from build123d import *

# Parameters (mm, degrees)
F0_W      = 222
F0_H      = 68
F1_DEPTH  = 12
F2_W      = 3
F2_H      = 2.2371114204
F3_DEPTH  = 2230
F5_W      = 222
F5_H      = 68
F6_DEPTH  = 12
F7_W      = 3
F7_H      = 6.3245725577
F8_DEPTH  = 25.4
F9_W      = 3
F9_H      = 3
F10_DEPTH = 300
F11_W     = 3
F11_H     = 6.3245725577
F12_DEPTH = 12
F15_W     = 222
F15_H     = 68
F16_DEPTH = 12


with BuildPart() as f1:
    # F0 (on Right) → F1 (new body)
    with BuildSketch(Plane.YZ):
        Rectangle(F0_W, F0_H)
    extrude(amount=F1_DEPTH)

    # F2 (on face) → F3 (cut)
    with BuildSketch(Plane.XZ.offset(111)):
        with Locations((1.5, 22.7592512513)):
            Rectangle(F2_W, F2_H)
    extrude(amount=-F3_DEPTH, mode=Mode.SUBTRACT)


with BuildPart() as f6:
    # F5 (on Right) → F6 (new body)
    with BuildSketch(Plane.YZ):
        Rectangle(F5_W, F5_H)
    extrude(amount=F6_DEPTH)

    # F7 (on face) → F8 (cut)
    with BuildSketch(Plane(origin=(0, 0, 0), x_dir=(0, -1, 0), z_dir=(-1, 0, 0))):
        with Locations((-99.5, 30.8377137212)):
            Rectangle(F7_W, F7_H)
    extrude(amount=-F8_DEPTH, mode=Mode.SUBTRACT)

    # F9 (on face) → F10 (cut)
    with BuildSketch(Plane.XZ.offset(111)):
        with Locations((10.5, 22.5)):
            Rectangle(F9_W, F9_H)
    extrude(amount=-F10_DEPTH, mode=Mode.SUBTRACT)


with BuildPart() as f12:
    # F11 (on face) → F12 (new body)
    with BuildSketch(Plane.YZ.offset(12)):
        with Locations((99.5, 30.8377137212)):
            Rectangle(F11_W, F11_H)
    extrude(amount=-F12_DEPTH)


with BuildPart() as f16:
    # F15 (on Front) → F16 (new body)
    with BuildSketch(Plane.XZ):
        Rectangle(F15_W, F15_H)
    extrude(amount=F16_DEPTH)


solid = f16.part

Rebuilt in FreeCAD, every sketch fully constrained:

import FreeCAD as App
import Part
import Sketcher


def add_polygon(sketch, points):
    """Adds a closed chain of lines whose ends are joined by coincident constraints."""
    first, n = sketch.GeometryCount, len(points)
    for a, b in zip(points, points[1:] + points[:1]):
        sketch.addGeometry(Part.LineSegment(App.Vector(*a, 0), App.Vector(*b, 0)), False)
    for i in range(n):
        sketch.addConstraint(Sketcher.Constraint("Coincident", first + i, 2, first + (i + 1) % n, 1))

doc = App.newDocument("Part")
body = doc.addObject("PartDesign::Body", "Body")

# Sketch on YZ plane
sketch1 = body.newObject("Sketcher::SketchObject", "Sketch")
sketch1.AttachmentSupport = (doc.getObject("YZ_Plane"), [""])
sketch1.MapMode = "FlatFace"
add_polygon(sketch1, [(-111, 34), (-111, -34), (111, -34), (111, 34)])  # lines 0-3
sketch1.addConstraint(Sketcher.Constraint("Vertical", 0))
sketch1.addConstraint(Sketcher.Constraint("Horizontal", 1))
sketch1.addConstraint(Sketcher.Constraint("Vertical", 2))
sketch1.addConstraint(Sketcher.Constraint("Horizontal", 3))
sketch1.addConstraint(Sketcher.Constraint("Symmetric", 0, 2, 2, 2, -1, 1))
sketch1.addConstraint(Sketcher.Constraint("DistanceX", 1, 1, 1, 2, 222.0))
sketch1.addConstraint(Sketcher.Constraint("DistanceY", 0, 2, 0, 1, 68.0))
pad1 = body.newObject("PartDesign::Pad", "Pad")
pad1.Profile = sketch1
pad1.Length = 12

# Sketch on XZ plane
sketch2 = body.newObject("Sketcher::SketchObject", "Sketch001")
sketch2.AttachmentSupport = (doc.getObject("XZ_Plane"), [""])
sketch2.MapMode = "FlatFace"
sketch2.AttachmentOffset = App.Placement(App.Vector(0, 0, 111), App.Rotation())
add_polygon(sketch2, [(0, 23.877807), (0, 21.640696), (3, 21.640696), (3, 23.877807)])  # lines 0-3
sketch2.addConstraint(Sketcher.Constraint("Vertical", 0))
sketch2.addConstraint(Sketcher.Constraint("Horizontal", 1))
sketch2.addConstraint(Sketcher.Constraint("Vertical", 2))
sketch2.addConstraint(Sketcher.Constraint("Horizontal", 3))
sketch2.addConstraint(Sketcher.Constraint("PointOnObject", 0, 2, -2))
sketch2.addConstraint(Sketcher.Constraint("DistanceX", 1, 1, 1, 2, 3.0))
sketch2.addConstraint(Sketcher.Constraint("DistanceY", 0, 2, 0, 1, 2.237111))
sketch2.addConstraint(Sketcher.Constraint("DistanceY", -1, 1, 0, 2, 21.640696))
pocket1 = body.newObject("PartDesign::Pocket", "Pocket")
pocket1.Profile = sketch2
pocket1.Length = 2230
body2 = doc.addObject("PartDesign::Body", "Body001")

# Sketch on YZ plane
sketch3 = body2.newObject("Sketcher::SketchObject", "Sketch002")
sketch3.AttachmentSupport = (doc.getObject("YZ_Plane001"), [""])
sketch3.MapMode = "FlatFace"
add_polygon(sketch3, [(-111, 34), (-111, -34), (111, -34), (111, 34)])  # lines 0-3
sketch3.addConstraint(Sketcher.Constraint("Vertical", 0))
sketch3.addConstraint(Sketcher.Constraint("Horizontal", 1))
sketch3.addConstraint(Sketcher.Constraint("Vertical", 2))
sketch3.addConstraint(Sketcher.Constraint("Horizontal", 3))
sketch3.addConstraint(Sketcher.Constraint("Symmetric", 0, 2, 2, 2, -1, 1))
sketch3.addConstraint(Sketcher.Constraint("DistanceX", 1, 1, 1, 2, 222.0))
sketch3.addConstraint(Sketcher.Constraint("DistanceY", 0, 2, 0, 1, 68.0))
pad2 = body2.newObject("PartDesign::Pad", "Pad001")
pad2.Profile = sketch3
pad2.Length = 12

# Sketch on YZ plane
sketch4 = body2.newObject("Sketcher::SketchObject", "Sketch003")
sketch4.AttachmentSupport = (doc.getObject("YZ_Plane001"), [""])
sketch4.MapMode = "FlatFace"
add_polygon(sketch4, [(101, 34), (101, 27.675427), (98, 27.675427), (98, 34)])  # lines 0-3
sketch4.addConstraint(Sketcher.Constraint("Vertical", 0))
sketch4.addConstraint(Sketcher.Constraint("Horizontal", 1))
sketch4.addConstraint(Sketcher.Constraint("Vertical", 2))
sketch4.addConstraint(Sketcher.Constraint("Horizontal", 3))
sketch4.addConstraint(Sketcher.Constraint("DistanceX", 1, 2, 1, 1, 3.0))
sketch4.addConstraint(Sketcher.Constraint("DistanceX", -1, 1, 0, 2, 101.0))
sketch4.addConstraint(Sketcher.Constraint("DistanceY", -1, 1, 2, 2, 34.0))
sketch4.addConstraint(Sketcher.Constraint("DistanceY", 0, 2, 0, 1, 6.324573))
pocket2 = body2.newObject("PartDesign::Pocket", "Pocket001")
pocket2.Profile = sketch4
pocket2.Length = 25.4
pocket2.Reversed = True

# Sketch on XZ plane
sketch5 = body2.newObject("Sketcher::SketchObject", "Sketch004")
sketch5.AttachmentSupport = (doc.getObject("XZ_Plane001"), [""])
sketch5.MapMode = "FlatFace"
sketch5.AttachmentOffset = App.Placement(App.Vector(0, 0, 111), App.Rotation())
add_polygon(sketch5, [(9, 24), (9, 21), (12, 21), (12, 24)])  # lines 0-3
sketch5.addConstraint(Sketcher.Constraint("Vertical", 0))
sketch5.addConstraint(Sketcher.Constraint("Horizontal", 1))
sketch5.addConstraint(Sketcher.Constraint("Vertical", 2))
sketch5.addConstraint(Sketcher.Constraint("Horizontal", 3))
sketch5.addConstraint(Sketcher.Constraint("Equal", 3, 0))
sketch5.addConstraint(Sketcher.Constraint("DistanceX", 1, 1, 1, 2, 3.0))
sketch5.addConstraint(Sketcher.Constraint("DistanceX", -1, 1, 0, 2, 9.0))
sketch5.addConstraint(Sketcher.Constraint("DistanceY", -1, 1, 0, 2, 21.0))
pocket3 = body2.newObject("PartDesign::Pocket", "Pocket002")
pocket3.Profile = sketch5
pocket3.Length = 300
body3 = doc.addObject("PartDesign::Body", "Body002")

# Sketch on YZ plane
sketch6 = body3.newObject("Sketcher::SketchObject", "Sketch005")
sketch6.AttachmentSupport = (doc.getObject("YZ_Plane002"), [""])
sketch6.MapMode = "FlatFace"
sketch6.AttachmentOffset = App.Placement(App.Vector(0, 0, 12), App.Rotation())
add_polygon(sketch6, [(98, 34), (98, 27.675427), (101, 27.675427), (101, 34)])  # lines 0-3
sketch6.addConstraint(Sketcher.Constraint("Vertical", 0))
sketch6.addConstraint(Sketcher.Constraint("Horizontal", 1))
sketch6.addConstraint(Sketcher.Constraint("Vertical", 2))
sketch6.addConstraint(Sketcher.Constraint("Horizontal", 3))
sketch6.addConstraint(Sketcher.Constraint("DistanceX", 1, 1, 1, 2, 3.0))
sketch6.addConstraint(Sketcher.Constraint("DistanceX", -1, 1, 0, 2, 98.0))
sketch6.addConstraint(Sketcher.Constraint("DistanceY", -1, 1, 2, 2, 34.0))
sketch6.addConstraint(Sketcher.Constraint("DistanceY", 0, 2, 0, 1, 6.324573))
pad3 = body3.newObject("PartDesign::Pad", "Pad002")
pad3.Profile = sketch6
pad3.Length = 12
pad3.Reversed = True
body4 = doc.addObject("PartDesign::Body", "Body003")

# Sketch on XZ plane
sketch7 = body4.newObject("Sketcher::SketchObject", "Sketch006")
sketch7.AttachmentSupport = (doc.getObject("XZ_Plane003"), [""])
sketch7.MapMode = "FlatFace"
add_polygon(sketch7, [(-111, 34), (-111, -34), (111, -34), (111, 34)])  # lines 0-3
sketch7.addConstraint(Sketcher.Constraint("Vertical", 0))
sketch7.addConstraint(Sketcher.Constraint("Horizontal", 1))
sketch7.addConstraint(Sketcher.Constraint("Vertical", 2))
sketch7.addConstraint(Sketcher.Constraint("Horizontal", 3))
sketch7.addConstraint(Sketcher.Constraint("Symmetric", 0, 2, 2, 2, -1, 1))
sketch7.addConstraint(Sketcher.Constraint("DistanceX", 1, 1, 1, 2, 222.0))
sketch7.addConstraint(Sketcher.Constraint("DistanceY", 0, 2, 0, 1, 68.0))
pad4 = body4.newObject("PartDesign::Pad", "Pad003")
pad4.Profile = sketch7
pad4.Length = 12
body.Visibility = False
body2.Visibility = False
body3.Visibility = False

doc.recompute()
